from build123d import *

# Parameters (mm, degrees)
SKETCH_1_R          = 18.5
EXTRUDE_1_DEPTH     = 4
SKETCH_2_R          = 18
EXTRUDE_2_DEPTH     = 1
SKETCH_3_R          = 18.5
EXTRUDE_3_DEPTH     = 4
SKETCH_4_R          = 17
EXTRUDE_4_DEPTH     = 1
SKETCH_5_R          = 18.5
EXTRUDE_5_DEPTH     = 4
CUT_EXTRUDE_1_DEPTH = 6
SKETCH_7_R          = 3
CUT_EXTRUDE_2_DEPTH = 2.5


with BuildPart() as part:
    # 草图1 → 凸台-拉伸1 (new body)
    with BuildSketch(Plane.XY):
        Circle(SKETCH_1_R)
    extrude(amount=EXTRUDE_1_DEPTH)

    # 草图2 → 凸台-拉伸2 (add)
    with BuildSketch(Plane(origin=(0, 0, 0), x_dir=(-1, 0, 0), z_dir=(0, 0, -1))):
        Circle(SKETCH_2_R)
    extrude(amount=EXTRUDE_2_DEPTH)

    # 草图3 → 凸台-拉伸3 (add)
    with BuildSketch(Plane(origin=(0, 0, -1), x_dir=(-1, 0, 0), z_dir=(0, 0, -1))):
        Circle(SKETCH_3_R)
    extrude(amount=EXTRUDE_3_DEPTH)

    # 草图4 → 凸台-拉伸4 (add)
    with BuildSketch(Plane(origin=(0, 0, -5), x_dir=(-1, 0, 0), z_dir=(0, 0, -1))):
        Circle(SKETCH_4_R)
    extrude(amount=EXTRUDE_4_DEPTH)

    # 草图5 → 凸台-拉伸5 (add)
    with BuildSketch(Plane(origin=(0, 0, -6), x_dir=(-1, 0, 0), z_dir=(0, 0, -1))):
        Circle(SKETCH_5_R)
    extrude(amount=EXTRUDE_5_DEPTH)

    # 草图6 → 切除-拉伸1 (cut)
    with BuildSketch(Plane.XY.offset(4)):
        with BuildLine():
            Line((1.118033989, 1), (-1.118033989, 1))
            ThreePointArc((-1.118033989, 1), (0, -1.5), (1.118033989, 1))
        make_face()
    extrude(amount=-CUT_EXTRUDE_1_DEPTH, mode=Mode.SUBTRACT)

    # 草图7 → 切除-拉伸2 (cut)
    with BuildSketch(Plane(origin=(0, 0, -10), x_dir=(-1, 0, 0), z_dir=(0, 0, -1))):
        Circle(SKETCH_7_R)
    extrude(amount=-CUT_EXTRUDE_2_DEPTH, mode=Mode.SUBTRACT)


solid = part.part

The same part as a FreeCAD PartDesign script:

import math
import FreeCAD as App
import Part
import Sketcher
from FreeCAD import Vector

doc = App.newDocument("Part")
body = doc.addObject("PartDesign::Body", "Body")

sketch1 = body.newObject("Sketcher::SketchObject", "Sketch")
sketch1.AttachmentSupport = (doc.getObject("XY_Plane"), [""])
sketch1.MapMode = "FlatFace"
sketch1.addGeometry(Part.Circle(Vector(0, 0, 0), Vector(0, 0, 1), 18.5), False)
sketch1.addConstraint([
    Sketcher.Constraint("Coincident", 0, 3, -1, 1),
    Sketcher.Constraint("Diameter", 0, 37.0),
])
pad1 = body.newObject("PartDesign::Pad", "Pad")
pad1.Profile = sketch1
pad1.Length = 4

sketch2 = body.newObject("Sketcher::SketchObject", "Sketch001")
sketch2.AttachmentSupport = (doc.getObject("XY_Plane"), [""])
sketch2.MapMode = "FlatFace"
sketch2.addGeometry(Part.Circle(Vector(0, 0, 0), Vector(0, 0, 1), 18), False)
sketch2.addConstraint([
    Sketcher.Constraint("Coincident", 0, 3, -1, 1),
    Sketcher.Constraint("Diameter", 0, 36.0),
])
pad2 = body.newObject("PartDesign::Pad", "Pad001")
pad2.Profile = sketch2
pad2.Length = 1
pad2.Reversed = True

sketch3 = body.newObject("Sketcher::SketchObject", "Sketch002")
sketch3.AttachmentSupport = (doc.getObject("XY_Plane"), [""])
sketch3.MapMode = "FlatFace"
sketch3.AttachmentOffset = App.Placement(Vector(0, 0, -1), App.Rotation())
sketch3.addGeometry(Part.Circle(Vector(0, 0, 0), Vector(0, 0, 1), 18.5), False)
sketch3.addConstraint([
    Sketcher.Constraint("Coincident", 0, 3, -1, 1),
    Sketcher.Constraint("Diameter", 0, 37.0),
])
pad3 = body.newObject("PartDesign::Pad", "Pad002")
pad3.Profile = sketch3
pad3.Length = 4
pad3.Reversed = True

sketch4 = body.newObject("Sketcher::SketchObject", "Sketch003")
sketch4.AttachmentSupport = (doc.getObject("XY_Plane"), [""])
sketch4.MapMode = "FlatFace"
sketch4.AttachmentOffset = App.Placement(Vector(0, 0, -5), App.Rotation())
sketch4.addGeometry(Part.Circle(Vector(0, 0, 0), Vector(0, 0, 1), 17), False)
sketch4.addConstraint([
    Sketcher.Constraint("Coincident", 0, 3, -1, 1),
    Sketcher.Constraint("Diameter", 0, 34.0),
])
pad4 = body.newObject("PartDesign::Pad", "Pad003")
pad4.Profile = sketch4
pad4.Length = 1
pad4.Reversed = True

sketch5 = body.newObject("Sketcher::SketchObject", "Sketch004")
sketch5.AttachmentSupport = (doc.getObject("XY_Plane"), [""])
sketch5.MapMode = "FlatFace"
sketch5.AttachmentOffset = App.Placement(Vector(0, 0, -6), App.Rotation())
sketch5.addGeometry(Part.Circle(Vector(0, 0, 0), Vector(0, 0, 1), 18.5), False)
sketch5.addConstraint([
    Sketcher.Constraint("Coincident", 0, 3, -1, 1),
    Sketcher.Constraint("Diameter", 0, 37.0),
])
pad5 = body.newObject("PartDesign::Pad", "Pad004")
pad5.Profile = sketch5
pad5.Length = 4
pad5.Reversed = True

sketch6 = body.newObject("Sketcher::SketchObject", "Sketch005")
sketch6.AttachmentSupport = (doc.getObject("XY_Plane"), [""])
sketch6.MapMode = "FlatFace"
sketch6.AttachmentOffset = App.Placement(Vector(0, 0, 4), App.Rotation())
sketch6.addGeometry([
    Part.LineSegment(Vector(1.118034, 1, 0), Vector(-1.118034, 1, 0)),
    Part.ArcOfCircle(Part.Circle(Vector(0, 0, 0), Vector(0, 0, 1), 1.5), math.radians(138.189685), math.radians(401.810315)),
], False)
sketch6.addConstraint([
    Sketcher.Constraint("Coincident", 0, 1, 1, 2),
    Sketcher.Constraint("Coincident", 1, 1, 0, 2),
    Sketcher.Constraint("Horizontal", 0),
    Sketcher.Constraint("Coincident", 1, 3, -1, 1),
    Sketcher.Constraint("Radius", 1, 1.5),
    Sketcher.Constraint("DistanceY", -1, 1, 0, 1, 1.0),
])
pocket1 = body.newObject("PartDesign::Pocket", "Pocket")
pocket1.Profile = sketch6
pocket1.Length = 6

sketch7 = body.newObject("Sketcher::SketchObject", "Sketch006")
sketch7.AttachmentSupport = (doc.getObject("XY_Plane"), [""])
sketch7.MapMode = "FlatFace"
sketch7.AttachmentOffset = App.Placement(Vector(0, 0, -10), App.Rotation())
sketch7.addGeometry(Part.Circle(Vector(0, 0, 0), Vector(0, 0, 1), 3), False)
sketch7.addConstraint([
    Sketcher.Constraint("Coincident", 0, 3, -1, 1),
    Sketcher.Constraint("Diameter", 0, 6.0),
])
pocket2 = body.newObject("PartDesign::Pocket", "Pocket001")
pocket2.Profile = sketch7
pocket2.Length = 2.5
pocket2.Reversed = True

doc.recompute()
